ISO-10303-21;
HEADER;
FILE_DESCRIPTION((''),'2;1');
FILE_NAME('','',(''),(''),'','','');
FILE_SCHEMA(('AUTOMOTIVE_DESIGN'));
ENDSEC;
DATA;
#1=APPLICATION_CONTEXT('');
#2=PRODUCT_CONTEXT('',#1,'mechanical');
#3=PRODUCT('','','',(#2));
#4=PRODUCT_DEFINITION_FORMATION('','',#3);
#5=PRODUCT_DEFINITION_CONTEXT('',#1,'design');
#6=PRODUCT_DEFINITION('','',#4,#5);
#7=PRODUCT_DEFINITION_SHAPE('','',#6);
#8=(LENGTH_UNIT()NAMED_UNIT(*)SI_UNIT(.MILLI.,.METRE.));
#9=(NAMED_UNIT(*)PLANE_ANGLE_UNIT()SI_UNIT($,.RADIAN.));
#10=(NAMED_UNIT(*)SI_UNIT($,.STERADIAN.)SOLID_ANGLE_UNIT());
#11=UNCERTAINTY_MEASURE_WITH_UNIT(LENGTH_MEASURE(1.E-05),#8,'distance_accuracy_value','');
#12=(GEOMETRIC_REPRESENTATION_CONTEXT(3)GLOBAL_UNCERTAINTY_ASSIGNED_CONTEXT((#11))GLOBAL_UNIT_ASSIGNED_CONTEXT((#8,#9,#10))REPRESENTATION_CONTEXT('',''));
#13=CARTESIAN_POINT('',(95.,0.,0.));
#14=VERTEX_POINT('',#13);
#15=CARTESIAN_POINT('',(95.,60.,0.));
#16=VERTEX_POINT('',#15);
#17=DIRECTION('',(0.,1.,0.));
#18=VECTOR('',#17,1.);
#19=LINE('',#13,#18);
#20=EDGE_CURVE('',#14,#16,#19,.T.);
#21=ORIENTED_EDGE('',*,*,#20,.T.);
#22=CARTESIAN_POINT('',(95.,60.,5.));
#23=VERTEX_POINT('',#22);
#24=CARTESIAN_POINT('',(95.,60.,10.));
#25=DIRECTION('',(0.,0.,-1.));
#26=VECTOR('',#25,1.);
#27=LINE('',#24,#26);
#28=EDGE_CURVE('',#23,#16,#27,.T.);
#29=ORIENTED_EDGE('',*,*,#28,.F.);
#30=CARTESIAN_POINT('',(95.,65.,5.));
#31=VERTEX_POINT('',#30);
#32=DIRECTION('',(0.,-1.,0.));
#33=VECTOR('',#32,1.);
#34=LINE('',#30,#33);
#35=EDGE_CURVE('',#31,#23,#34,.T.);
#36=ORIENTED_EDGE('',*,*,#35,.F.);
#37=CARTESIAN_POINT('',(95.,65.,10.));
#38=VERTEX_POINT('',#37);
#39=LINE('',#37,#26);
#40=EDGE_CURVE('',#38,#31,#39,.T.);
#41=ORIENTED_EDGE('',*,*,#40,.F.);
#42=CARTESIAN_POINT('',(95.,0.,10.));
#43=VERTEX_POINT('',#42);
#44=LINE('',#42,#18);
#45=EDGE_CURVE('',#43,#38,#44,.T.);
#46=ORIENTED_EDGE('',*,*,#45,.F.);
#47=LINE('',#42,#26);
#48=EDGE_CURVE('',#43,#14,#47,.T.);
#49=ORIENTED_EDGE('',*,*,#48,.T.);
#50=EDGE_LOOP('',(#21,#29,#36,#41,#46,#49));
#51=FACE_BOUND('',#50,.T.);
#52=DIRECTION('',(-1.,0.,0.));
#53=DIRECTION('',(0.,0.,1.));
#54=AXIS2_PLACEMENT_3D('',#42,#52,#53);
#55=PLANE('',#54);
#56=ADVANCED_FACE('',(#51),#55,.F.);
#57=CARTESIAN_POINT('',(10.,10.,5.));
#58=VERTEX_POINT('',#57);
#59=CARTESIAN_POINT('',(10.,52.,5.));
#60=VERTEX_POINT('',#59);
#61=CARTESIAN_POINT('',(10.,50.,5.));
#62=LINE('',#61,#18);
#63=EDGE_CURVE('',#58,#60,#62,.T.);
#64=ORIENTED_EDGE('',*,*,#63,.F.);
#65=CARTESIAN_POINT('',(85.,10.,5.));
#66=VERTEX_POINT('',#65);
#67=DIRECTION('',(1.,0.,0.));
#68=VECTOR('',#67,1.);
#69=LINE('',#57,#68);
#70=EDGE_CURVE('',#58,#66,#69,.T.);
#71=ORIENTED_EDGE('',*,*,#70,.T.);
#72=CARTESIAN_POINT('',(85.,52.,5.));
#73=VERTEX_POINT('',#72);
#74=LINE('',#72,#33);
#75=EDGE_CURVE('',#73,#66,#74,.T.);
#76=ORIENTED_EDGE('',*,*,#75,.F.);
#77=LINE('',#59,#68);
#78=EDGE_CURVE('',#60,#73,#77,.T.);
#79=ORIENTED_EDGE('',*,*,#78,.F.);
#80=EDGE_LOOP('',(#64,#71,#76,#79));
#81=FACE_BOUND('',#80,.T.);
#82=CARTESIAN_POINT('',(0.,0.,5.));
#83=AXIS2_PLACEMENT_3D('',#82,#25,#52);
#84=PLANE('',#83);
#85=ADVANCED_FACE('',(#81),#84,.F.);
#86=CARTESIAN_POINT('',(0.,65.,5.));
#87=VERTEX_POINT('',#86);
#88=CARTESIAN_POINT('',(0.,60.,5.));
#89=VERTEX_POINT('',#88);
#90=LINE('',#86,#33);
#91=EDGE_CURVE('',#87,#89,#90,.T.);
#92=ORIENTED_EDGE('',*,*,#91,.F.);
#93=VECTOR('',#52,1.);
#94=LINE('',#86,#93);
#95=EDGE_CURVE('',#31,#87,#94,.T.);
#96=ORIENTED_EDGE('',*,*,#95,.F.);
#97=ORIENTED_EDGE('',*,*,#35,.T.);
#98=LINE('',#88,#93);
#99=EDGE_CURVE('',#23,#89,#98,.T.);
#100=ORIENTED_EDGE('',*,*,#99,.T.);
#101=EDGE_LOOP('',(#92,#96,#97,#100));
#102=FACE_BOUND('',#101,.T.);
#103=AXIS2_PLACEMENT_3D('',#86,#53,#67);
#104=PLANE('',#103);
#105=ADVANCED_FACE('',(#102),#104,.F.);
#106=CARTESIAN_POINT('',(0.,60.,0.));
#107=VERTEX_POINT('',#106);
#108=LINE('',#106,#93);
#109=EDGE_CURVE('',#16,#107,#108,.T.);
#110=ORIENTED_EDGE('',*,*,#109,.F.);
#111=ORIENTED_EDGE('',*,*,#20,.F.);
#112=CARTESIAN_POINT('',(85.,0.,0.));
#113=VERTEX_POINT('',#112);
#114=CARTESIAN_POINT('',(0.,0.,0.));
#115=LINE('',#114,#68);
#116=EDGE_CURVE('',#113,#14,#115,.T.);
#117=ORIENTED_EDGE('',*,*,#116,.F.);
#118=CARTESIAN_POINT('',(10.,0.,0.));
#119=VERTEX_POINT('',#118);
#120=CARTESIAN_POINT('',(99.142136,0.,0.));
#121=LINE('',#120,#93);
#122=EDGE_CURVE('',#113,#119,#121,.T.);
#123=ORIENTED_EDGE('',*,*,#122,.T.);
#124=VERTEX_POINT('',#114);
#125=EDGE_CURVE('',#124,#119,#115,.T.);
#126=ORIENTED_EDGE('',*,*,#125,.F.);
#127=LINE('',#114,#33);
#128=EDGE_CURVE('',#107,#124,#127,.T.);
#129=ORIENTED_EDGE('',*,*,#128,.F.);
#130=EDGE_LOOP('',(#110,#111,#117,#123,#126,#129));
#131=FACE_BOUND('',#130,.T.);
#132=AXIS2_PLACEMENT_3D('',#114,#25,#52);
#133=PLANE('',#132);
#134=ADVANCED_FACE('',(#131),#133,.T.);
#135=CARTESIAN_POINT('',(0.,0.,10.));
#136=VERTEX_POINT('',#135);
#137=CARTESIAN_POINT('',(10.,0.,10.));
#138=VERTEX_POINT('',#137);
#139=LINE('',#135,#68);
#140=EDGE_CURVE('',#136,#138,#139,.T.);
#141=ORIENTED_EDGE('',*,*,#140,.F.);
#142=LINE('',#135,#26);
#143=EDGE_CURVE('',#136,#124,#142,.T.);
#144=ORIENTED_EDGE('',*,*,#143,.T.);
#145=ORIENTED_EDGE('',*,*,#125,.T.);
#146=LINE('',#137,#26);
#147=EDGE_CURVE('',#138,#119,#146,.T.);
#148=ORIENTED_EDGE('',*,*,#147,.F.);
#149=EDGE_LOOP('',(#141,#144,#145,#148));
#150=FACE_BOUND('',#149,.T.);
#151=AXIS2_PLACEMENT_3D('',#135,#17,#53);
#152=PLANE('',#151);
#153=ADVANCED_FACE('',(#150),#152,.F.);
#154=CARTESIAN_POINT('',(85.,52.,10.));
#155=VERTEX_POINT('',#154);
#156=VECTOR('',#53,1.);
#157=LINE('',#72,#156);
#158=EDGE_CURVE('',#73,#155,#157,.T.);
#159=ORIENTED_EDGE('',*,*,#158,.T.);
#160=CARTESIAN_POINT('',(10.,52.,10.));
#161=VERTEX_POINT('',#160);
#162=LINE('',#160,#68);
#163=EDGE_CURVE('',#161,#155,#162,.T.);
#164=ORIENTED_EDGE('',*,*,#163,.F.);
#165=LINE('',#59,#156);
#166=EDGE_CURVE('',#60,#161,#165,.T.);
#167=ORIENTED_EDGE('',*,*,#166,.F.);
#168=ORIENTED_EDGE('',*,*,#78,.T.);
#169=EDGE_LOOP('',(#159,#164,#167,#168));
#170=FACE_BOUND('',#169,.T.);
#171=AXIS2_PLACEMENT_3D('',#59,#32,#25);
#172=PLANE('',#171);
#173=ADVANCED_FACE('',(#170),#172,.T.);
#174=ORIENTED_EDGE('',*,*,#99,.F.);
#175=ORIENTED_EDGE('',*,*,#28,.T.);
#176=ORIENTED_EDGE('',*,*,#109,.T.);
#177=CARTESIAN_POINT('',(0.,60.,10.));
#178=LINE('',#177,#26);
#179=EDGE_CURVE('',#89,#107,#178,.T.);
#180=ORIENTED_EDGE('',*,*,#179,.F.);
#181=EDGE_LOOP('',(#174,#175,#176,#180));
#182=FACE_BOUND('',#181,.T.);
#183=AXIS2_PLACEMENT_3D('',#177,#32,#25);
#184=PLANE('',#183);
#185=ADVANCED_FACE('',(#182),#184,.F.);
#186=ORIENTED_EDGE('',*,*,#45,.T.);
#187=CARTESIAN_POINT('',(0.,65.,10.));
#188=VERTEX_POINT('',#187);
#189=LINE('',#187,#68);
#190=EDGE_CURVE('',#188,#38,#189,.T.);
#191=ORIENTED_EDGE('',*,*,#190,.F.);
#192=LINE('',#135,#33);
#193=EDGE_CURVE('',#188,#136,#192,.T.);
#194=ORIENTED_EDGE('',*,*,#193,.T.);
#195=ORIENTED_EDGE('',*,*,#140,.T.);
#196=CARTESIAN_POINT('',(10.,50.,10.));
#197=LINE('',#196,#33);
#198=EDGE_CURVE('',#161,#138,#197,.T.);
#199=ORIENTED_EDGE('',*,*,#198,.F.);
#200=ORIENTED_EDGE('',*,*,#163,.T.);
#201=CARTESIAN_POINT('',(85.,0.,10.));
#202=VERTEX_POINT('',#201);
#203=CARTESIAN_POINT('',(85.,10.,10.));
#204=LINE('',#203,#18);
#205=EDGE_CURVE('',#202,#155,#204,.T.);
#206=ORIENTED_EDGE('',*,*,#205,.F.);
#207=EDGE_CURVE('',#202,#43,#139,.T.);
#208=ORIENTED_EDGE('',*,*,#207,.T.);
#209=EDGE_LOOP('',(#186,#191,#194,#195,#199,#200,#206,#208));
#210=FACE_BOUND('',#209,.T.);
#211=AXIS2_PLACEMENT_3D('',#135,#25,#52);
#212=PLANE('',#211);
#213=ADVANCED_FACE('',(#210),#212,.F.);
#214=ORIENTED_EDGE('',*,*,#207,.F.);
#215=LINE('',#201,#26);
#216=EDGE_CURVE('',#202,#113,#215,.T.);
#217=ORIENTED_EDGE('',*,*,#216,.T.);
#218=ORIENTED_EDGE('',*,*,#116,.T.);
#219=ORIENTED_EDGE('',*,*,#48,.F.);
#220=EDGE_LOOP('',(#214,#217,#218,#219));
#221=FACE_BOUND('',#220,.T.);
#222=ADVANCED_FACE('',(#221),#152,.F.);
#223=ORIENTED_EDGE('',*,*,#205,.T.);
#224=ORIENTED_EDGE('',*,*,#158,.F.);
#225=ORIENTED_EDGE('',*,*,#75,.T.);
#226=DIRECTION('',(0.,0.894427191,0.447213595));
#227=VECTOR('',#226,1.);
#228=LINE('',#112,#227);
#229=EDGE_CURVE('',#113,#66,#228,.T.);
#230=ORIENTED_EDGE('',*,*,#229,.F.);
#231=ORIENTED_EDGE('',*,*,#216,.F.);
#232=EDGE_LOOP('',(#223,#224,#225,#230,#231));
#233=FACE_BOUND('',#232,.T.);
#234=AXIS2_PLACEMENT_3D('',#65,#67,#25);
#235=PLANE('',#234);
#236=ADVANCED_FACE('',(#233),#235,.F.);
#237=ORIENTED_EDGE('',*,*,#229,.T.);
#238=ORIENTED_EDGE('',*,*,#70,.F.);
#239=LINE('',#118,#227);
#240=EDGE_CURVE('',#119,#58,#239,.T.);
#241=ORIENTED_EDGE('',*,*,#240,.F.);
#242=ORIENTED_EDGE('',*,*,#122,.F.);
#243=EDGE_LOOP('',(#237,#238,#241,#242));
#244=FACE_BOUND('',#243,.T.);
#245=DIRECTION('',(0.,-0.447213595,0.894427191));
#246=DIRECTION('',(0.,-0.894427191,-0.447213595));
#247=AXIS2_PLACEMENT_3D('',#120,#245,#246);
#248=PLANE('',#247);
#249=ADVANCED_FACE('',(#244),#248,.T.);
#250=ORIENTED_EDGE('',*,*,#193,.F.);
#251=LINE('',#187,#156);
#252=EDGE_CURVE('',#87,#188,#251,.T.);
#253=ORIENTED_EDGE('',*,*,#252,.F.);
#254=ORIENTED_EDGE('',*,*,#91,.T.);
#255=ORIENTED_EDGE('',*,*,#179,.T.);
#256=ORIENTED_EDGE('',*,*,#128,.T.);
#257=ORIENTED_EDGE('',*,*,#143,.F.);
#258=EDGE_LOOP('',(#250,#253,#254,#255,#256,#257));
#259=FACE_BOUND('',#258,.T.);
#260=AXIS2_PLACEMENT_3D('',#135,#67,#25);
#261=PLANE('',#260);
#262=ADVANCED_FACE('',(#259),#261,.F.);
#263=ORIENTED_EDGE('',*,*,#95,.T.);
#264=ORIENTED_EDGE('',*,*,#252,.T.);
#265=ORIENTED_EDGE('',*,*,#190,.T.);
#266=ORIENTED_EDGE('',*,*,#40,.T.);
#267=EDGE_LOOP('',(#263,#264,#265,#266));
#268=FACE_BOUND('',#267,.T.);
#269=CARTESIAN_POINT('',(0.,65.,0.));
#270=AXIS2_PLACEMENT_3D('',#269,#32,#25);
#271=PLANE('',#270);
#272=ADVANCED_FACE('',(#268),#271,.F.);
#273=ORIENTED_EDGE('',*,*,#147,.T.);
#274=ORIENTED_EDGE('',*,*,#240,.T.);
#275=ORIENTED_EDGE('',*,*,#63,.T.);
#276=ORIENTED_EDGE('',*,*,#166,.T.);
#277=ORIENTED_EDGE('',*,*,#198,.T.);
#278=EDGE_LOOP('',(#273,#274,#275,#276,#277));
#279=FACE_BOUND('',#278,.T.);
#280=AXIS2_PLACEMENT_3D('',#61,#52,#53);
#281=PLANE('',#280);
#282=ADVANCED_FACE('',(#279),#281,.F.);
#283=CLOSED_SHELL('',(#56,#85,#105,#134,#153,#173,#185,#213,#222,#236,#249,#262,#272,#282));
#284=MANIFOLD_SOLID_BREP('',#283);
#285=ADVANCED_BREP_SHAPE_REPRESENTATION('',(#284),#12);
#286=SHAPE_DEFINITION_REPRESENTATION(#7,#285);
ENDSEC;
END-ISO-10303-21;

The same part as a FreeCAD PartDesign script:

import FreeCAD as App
import Part
import Sketcher


def add_polygon(sketch, points):
    """Adds a closed chain of lines whose ends are joined by coincident constraints."""
    first, n = sketch.GeometryCount, len(points)
    for a, b in zip(points, points[1:] + points[:1]):
        sketch.addGeometry(Part.LineSegment(App.Vector(*a, 0), App.Vector(*b, 0)), False)
    for i in range(n):
        sketch.addConstraint(Sketcher.Constraint("Coincident", first + i, 2, first + (i + 1) % n, 1))

doc = App.newDocument("Part")
params = doc.addObject("Spreadsheet::Sheet", "Params")
for row, (alias, value) in enumerate([
    ("sketch1_width", "95 mm"),
    ("sketch1_height", "60 mm"),
    ("pad1_length", "10 mm"),
    ("sketch2_width", "75 mm"),
    ("sketch2_height", "42 mm"),
    ("pocket1_length", "5 mm"),
    ("sketch3_width", "10 mm"),
    ("sketch3_height", "5 mm"),
    ("pocket2_length", "75 mm"),
    ("sketch4_width", "95 mm"),
    ("sketch4_height", "5 mm"),
    ("pad2_length", "5 mm"),
], start=1):
    params.set(f"A{row}", alias)
    params.set(f"B{row}", "=" + value)
    params.setAlias(f"B{row}", alias)

body = doc.addObject("PartDesign::Body", "Body")

sketch1 = body.newObject("Sketcher::SketchObject", "Sketch")
sketch1.AttachmentSupport = (doc.getObject("XY_Plane"), [""])
sketch1.MapMode = "FlatFace"
add_polygon(sketch1, [(0, 60), (0, 0), (95, 0), (95, 60)])
sketch1.addConstraint(Sketcher.Constraint("Vertical", 0))
sketch1.addConstraint(Sketcher.Constraint("Horizontal", 1))
sketch1.addConstraint(Sketcher.Constraint("Vertical", 2))
sketch1.addConstraint(Sketcher.Constraint("Horizontal", 3))
sketch1.addConstraint(Sketcher.Constraint("Coincident", 0, 2, -1, 1))
sketch1.addConstraint(Sketcher.Constraint("DistanceX", 1, 1, 1, 2, 95.0))
sketch1.addConstraint(Sketcher.Constraint("DistanceY", 0, 2, 0, 1, 60.0))
sketch1.setExpression("Constraints[9]", "Params.sketch1_width")
sketch1.setExpression("Constraints[10]", "Params.sketch1_height")
pad1 = body.newObject("PartDesign::Pad", "Pad")
pad1.Profile = sketch1
pad1.setExpression("Length", "Params.pad1_length")

sketch2 = body.newObject("Sketcher::SketchObject", "Sketch001")
sketch2.AttachmentSupport = (doc.getObject("XY_Plane"), [""])
sketch2.MapMode = "FlatFace"
sketch2.AttachmentOffset = App.Placement(App.Vector(0, 0, 10), App.Rotation())
add_polygon(sketch2, [(10, 52), (10, 10), (85, 10), (85, 52)])
sketch2.addConstraint(Sketcher.Constraint("Vertical", 0))
sketch2.addConstraint(Sketcher.Constraint("Horizontal", 1))
sketch2.addConstraint(Sketcher.Constraint("Vertical", 2))
sketch2.addConstraint(Sketcher.Constraint("Horizontal", 3))
sketch2.addConstraint(Sketcher.Constraint("DistanceX", 1, 1, 1, 2, 75.0))
sketch2.addConstraint(Sketcher.Constraint("DistanceY", 0, 2, 0, 1, 42.0))
sketch2.addConstraint(Sketcher.Constraint("DistanceX", -1, 1, 0, 2, 10.0))
sketch2.addConstraint(Sketcher.Constraint("DistanceY", -1, 1, 0, 2, 10.0))
sketch2.setExpression("Constraints[8]", "Params.sketch2_width")
sketch2.setExpression("Constraints[9]", "Params.sketch2_height")
pocket1 = body.newObject("PartDesign::Pocket", "Pocket")
pocket1.Profile = sketch2
pocket1.setExpression("Length", "Params.pocket1_length")

sketch3 = body.newObject("Sketcher::SketchObject", "Sketch002")
sketch3.AttachmentSupport = (doc.getObject("YZ_Plane"), [""])
sketch3.MapMode = "FlatFace"
sketch3.AttachmentOffset = App.Placement(App.Vector(0, 0, 10), App.Rotation())
add_polygon(sketch3, [(0, 0), (10, 5), (10, 10), (0, 10)])
sketch3.addConstraint(Sketcher.Constraint("Vertical", 1))
sketch3.addConstraint(Sketcher.Constraint("Horizontal", 2))
sketch3.addConstraint(Sketcher.Constraint("Vertical", 3))
sketch3.addConstraint(Sketcher.Constraint("Coincident", 3, 2, -1, 1))
sketch3.addConstraint(Sketcher.Constraint("Equal", 2, 3))
sketch3.addConstraint(Sketcher.Constraint("DistanceX", 2, 2, 2, 1, 10.0))
sketch3.addConstraint(Sketcher.Constraint("DistanceY", 1, 1, 1, 2, 5.0))
sketch3.setExpression("Constraints[9]", "Params.sketch3_width")
sketch3.setExpression("Constraints[10]", "Params.sketch3_height")
pocket2 = body.newObject("PartDesign::Pocket", "Pocket001")
pocket2.Profile = sketch3
pocket2.setExpression("Length", "Params.pocket2_length")
pocket2.Reversed = True

sketch4 = body.newObject("Sketcher::SketchObject", "Sketch003")
sketch4.AttachmentSupport = (doc.getObject("XZ_Plane"), [""])
sketch4.MapMode = "FlatFace"
sketch4.AttachmentOffset = App.Placement(App.Vector(0, 0, -60), App.Rotation())
add_polygon(sketch4, [(0, 5), (0, 10), (95, 10), (95, 5)])
sketch4.addConstraint(Sketcher.Constraint("Vertical", 0))
sketch4.addConstraint(Sketcher.Constraint("Horizontal", 1))
sketch4.addConstraint(Sketcher.Constraint("Vertical", 2))
sketch4.addConstraint(Sketcher.Constraint("Horizontal", 3))
sketch4.addConstraint(Sketcher.Constraint("PointOnObject", 0, 2, -2))
sketch4.addConstraint(Sketcher.Constraint("DistanceX", 1, 1, 1, 2, 95.0))
sketch4.addConstraint(Sketcher.Constraint("DistanceY", 0, 1, 0, 2, 5.0))
sketch4.addConstraint(Sketcher.Constraint("DistanceY", -1, 1, 0, 2, 10.0))
sketch4.setExpression("Constraints[9]", "Params.sketch4_width")
sketch4.setExpression("Constraints[10]", "Params.sketch4_height")
pad2 = body.newObject("PartDesign::Pad", "Pad001")
pad2.Profile = sketch4
pad2.setExpression("Length", "Params.pad2_length")
pad2.Reversed = True

doc.recompute()
